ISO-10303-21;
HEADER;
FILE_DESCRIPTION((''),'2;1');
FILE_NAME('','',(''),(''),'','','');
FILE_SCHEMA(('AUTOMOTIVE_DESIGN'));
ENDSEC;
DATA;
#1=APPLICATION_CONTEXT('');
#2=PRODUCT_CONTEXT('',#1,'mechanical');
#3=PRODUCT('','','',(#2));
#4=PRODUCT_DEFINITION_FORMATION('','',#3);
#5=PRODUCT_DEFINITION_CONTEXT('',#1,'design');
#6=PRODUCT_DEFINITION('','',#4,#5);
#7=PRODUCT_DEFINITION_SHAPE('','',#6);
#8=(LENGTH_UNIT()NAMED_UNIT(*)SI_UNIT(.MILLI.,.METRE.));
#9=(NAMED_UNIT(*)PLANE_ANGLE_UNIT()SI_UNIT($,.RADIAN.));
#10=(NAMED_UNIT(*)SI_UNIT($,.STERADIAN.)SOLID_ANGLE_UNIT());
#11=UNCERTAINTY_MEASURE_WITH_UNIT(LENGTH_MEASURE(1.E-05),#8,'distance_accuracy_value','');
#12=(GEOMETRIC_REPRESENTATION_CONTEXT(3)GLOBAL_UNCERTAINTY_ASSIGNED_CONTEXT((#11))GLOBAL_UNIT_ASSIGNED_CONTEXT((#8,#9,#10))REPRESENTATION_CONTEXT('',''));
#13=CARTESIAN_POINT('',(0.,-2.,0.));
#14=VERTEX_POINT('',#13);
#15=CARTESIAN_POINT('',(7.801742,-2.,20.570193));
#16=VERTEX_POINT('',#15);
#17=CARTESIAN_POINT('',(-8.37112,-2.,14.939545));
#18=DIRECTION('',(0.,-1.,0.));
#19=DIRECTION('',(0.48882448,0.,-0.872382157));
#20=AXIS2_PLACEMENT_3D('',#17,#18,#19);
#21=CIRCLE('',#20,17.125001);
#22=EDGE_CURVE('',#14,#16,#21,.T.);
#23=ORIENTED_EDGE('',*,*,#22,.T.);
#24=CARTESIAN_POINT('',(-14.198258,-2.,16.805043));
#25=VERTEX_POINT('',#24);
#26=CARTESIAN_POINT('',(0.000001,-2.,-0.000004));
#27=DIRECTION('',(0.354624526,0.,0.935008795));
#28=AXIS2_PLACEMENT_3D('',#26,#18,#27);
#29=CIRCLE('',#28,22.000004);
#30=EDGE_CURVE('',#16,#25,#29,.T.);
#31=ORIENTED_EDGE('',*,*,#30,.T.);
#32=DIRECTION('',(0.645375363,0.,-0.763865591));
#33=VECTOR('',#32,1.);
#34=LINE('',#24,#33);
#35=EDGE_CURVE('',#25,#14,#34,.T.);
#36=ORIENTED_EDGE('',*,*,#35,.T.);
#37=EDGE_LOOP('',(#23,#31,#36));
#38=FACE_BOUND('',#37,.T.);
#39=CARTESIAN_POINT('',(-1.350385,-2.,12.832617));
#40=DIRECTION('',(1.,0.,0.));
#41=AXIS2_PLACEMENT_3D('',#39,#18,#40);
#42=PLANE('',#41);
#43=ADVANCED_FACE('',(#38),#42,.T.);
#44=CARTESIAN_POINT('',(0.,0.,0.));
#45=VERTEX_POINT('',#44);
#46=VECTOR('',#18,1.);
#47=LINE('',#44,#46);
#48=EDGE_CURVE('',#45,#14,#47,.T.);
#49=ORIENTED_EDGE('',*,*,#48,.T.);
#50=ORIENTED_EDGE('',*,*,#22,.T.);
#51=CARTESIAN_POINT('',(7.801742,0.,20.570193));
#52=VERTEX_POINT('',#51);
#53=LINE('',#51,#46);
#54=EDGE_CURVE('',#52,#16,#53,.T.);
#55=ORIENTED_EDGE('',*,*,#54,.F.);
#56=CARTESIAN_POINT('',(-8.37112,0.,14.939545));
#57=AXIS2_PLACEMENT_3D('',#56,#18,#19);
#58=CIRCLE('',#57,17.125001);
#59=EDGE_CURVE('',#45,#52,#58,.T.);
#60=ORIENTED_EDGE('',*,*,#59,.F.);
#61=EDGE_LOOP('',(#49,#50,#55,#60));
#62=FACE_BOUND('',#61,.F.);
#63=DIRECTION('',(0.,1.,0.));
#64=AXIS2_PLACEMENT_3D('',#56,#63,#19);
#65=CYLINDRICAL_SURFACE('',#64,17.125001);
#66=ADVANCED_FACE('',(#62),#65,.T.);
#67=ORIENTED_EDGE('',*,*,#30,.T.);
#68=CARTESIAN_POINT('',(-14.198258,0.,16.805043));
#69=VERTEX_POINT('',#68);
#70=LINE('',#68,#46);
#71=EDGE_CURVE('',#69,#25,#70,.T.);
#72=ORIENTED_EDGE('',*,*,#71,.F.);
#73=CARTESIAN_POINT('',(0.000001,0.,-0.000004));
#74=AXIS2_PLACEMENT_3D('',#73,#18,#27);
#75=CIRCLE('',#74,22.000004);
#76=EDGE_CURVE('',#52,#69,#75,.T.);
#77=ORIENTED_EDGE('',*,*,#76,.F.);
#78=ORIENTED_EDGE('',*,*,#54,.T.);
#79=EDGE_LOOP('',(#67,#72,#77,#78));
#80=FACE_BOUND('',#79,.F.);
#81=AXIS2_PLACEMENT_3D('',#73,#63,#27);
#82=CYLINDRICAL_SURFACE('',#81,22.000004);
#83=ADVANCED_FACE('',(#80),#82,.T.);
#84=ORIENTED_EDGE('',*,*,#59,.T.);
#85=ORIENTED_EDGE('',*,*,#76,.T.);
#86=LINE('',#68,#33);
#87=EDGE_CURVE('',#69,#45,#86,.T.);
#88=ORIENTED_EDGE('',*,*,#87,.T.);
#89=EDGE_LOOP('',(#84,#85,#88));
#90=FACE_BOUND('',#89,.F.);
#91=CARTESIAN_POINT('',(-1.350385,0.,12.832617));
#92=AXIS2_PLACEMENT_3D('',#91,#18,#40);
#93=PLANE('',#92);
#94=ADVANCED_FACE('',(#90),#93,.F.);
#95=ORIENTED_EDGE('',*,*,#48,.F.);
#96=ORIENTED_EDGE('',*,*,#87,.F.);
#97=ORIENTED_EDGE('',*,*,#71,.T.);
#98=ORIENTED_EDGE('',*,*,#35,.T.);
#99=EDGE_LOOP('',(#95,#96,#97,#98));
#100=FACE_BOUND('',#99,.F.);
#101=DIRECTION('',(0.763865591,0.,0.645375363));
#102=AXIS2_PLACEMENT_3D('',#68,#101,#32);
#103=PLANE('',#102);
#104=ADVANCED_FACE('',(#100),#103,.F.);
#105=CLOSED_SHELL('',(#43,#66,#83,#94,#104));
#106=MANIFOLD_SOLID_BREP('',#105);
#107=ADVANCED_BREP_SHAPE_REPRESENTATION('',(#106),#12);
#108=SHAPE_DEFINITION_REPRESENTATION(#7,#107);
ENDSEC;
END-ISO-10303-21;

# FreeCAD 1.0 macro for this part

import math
import FreeCAD as App
import Part
import Sketcher
Q = App.Units.Quantity

doc = App.newDocument("Part")
body = doc.addObject("PartDesign::Body", "Body")

# Sketch on XZ plane
sketch1 = body.newObject("Sketcher::SketchObject", "Sketch")
sketch1.AttachmentSupport = (doc.getObject("XZ_Plane"), [""])
sketch1.MapMode = "FlatFace"
sketch1.addGeometry(Part.LineSegment(App.Vector(-14, 17, 0), App.Vector(0, 0, 0)), False)
sketch1.addGeometry(Part.ArcOfCircle(Part.Circle(App.Vector(-8, 15, 0), App.Vector(0, 0, 1), 17), math.radians(-61), math.radians(19)), False)
sketch1.addGeometry(Part.ArcOfCircle(Part.Circle(App.Vector(0, 0, 0), App.Vector(0, 0, 1), 22), math.radians(69), math.radians(130)), False)
sketch1.addConstraint(Sketcher.Constraint("Coincident", 0, 2, 1, 1))
sketch1.addConstraint(Sketcher.Constraint("Coincident", 1, 2, 2, 1))
sketch1.addConstraint(Sketcher.Constraint("Coincident", 2, 2, 0, 1))
sketch1.addConstraint(Sketcher.Constraint("Coincident", 2, 3, -1, 1))
sketch1.addConstraint(Sketcher.Constraint("Coincident", 0, 2, -1, 1))
sketch1.addConstraint(Sketcher.Constraint("Distance", 0, Q("22 mm")))
sketch1.addConstraint(Sketcher.Constraint("Radius", 1, Q("17.125001 mm")))
sketch1.addConstraint(Sketcher.Constraint("DistanceX", 2, 2, 1, 2, Q("22 mm")))
sketch1.addConstraint(Sketcher.Constraint("DistanceX", 1, 3, -1, 1, Q("8.37112 mm")))
pad1 = body.newObject("PartDesign::Pad", "Pad")
pad1.Profile = sketch1
pad1.Length = 2

doc.recompute()
